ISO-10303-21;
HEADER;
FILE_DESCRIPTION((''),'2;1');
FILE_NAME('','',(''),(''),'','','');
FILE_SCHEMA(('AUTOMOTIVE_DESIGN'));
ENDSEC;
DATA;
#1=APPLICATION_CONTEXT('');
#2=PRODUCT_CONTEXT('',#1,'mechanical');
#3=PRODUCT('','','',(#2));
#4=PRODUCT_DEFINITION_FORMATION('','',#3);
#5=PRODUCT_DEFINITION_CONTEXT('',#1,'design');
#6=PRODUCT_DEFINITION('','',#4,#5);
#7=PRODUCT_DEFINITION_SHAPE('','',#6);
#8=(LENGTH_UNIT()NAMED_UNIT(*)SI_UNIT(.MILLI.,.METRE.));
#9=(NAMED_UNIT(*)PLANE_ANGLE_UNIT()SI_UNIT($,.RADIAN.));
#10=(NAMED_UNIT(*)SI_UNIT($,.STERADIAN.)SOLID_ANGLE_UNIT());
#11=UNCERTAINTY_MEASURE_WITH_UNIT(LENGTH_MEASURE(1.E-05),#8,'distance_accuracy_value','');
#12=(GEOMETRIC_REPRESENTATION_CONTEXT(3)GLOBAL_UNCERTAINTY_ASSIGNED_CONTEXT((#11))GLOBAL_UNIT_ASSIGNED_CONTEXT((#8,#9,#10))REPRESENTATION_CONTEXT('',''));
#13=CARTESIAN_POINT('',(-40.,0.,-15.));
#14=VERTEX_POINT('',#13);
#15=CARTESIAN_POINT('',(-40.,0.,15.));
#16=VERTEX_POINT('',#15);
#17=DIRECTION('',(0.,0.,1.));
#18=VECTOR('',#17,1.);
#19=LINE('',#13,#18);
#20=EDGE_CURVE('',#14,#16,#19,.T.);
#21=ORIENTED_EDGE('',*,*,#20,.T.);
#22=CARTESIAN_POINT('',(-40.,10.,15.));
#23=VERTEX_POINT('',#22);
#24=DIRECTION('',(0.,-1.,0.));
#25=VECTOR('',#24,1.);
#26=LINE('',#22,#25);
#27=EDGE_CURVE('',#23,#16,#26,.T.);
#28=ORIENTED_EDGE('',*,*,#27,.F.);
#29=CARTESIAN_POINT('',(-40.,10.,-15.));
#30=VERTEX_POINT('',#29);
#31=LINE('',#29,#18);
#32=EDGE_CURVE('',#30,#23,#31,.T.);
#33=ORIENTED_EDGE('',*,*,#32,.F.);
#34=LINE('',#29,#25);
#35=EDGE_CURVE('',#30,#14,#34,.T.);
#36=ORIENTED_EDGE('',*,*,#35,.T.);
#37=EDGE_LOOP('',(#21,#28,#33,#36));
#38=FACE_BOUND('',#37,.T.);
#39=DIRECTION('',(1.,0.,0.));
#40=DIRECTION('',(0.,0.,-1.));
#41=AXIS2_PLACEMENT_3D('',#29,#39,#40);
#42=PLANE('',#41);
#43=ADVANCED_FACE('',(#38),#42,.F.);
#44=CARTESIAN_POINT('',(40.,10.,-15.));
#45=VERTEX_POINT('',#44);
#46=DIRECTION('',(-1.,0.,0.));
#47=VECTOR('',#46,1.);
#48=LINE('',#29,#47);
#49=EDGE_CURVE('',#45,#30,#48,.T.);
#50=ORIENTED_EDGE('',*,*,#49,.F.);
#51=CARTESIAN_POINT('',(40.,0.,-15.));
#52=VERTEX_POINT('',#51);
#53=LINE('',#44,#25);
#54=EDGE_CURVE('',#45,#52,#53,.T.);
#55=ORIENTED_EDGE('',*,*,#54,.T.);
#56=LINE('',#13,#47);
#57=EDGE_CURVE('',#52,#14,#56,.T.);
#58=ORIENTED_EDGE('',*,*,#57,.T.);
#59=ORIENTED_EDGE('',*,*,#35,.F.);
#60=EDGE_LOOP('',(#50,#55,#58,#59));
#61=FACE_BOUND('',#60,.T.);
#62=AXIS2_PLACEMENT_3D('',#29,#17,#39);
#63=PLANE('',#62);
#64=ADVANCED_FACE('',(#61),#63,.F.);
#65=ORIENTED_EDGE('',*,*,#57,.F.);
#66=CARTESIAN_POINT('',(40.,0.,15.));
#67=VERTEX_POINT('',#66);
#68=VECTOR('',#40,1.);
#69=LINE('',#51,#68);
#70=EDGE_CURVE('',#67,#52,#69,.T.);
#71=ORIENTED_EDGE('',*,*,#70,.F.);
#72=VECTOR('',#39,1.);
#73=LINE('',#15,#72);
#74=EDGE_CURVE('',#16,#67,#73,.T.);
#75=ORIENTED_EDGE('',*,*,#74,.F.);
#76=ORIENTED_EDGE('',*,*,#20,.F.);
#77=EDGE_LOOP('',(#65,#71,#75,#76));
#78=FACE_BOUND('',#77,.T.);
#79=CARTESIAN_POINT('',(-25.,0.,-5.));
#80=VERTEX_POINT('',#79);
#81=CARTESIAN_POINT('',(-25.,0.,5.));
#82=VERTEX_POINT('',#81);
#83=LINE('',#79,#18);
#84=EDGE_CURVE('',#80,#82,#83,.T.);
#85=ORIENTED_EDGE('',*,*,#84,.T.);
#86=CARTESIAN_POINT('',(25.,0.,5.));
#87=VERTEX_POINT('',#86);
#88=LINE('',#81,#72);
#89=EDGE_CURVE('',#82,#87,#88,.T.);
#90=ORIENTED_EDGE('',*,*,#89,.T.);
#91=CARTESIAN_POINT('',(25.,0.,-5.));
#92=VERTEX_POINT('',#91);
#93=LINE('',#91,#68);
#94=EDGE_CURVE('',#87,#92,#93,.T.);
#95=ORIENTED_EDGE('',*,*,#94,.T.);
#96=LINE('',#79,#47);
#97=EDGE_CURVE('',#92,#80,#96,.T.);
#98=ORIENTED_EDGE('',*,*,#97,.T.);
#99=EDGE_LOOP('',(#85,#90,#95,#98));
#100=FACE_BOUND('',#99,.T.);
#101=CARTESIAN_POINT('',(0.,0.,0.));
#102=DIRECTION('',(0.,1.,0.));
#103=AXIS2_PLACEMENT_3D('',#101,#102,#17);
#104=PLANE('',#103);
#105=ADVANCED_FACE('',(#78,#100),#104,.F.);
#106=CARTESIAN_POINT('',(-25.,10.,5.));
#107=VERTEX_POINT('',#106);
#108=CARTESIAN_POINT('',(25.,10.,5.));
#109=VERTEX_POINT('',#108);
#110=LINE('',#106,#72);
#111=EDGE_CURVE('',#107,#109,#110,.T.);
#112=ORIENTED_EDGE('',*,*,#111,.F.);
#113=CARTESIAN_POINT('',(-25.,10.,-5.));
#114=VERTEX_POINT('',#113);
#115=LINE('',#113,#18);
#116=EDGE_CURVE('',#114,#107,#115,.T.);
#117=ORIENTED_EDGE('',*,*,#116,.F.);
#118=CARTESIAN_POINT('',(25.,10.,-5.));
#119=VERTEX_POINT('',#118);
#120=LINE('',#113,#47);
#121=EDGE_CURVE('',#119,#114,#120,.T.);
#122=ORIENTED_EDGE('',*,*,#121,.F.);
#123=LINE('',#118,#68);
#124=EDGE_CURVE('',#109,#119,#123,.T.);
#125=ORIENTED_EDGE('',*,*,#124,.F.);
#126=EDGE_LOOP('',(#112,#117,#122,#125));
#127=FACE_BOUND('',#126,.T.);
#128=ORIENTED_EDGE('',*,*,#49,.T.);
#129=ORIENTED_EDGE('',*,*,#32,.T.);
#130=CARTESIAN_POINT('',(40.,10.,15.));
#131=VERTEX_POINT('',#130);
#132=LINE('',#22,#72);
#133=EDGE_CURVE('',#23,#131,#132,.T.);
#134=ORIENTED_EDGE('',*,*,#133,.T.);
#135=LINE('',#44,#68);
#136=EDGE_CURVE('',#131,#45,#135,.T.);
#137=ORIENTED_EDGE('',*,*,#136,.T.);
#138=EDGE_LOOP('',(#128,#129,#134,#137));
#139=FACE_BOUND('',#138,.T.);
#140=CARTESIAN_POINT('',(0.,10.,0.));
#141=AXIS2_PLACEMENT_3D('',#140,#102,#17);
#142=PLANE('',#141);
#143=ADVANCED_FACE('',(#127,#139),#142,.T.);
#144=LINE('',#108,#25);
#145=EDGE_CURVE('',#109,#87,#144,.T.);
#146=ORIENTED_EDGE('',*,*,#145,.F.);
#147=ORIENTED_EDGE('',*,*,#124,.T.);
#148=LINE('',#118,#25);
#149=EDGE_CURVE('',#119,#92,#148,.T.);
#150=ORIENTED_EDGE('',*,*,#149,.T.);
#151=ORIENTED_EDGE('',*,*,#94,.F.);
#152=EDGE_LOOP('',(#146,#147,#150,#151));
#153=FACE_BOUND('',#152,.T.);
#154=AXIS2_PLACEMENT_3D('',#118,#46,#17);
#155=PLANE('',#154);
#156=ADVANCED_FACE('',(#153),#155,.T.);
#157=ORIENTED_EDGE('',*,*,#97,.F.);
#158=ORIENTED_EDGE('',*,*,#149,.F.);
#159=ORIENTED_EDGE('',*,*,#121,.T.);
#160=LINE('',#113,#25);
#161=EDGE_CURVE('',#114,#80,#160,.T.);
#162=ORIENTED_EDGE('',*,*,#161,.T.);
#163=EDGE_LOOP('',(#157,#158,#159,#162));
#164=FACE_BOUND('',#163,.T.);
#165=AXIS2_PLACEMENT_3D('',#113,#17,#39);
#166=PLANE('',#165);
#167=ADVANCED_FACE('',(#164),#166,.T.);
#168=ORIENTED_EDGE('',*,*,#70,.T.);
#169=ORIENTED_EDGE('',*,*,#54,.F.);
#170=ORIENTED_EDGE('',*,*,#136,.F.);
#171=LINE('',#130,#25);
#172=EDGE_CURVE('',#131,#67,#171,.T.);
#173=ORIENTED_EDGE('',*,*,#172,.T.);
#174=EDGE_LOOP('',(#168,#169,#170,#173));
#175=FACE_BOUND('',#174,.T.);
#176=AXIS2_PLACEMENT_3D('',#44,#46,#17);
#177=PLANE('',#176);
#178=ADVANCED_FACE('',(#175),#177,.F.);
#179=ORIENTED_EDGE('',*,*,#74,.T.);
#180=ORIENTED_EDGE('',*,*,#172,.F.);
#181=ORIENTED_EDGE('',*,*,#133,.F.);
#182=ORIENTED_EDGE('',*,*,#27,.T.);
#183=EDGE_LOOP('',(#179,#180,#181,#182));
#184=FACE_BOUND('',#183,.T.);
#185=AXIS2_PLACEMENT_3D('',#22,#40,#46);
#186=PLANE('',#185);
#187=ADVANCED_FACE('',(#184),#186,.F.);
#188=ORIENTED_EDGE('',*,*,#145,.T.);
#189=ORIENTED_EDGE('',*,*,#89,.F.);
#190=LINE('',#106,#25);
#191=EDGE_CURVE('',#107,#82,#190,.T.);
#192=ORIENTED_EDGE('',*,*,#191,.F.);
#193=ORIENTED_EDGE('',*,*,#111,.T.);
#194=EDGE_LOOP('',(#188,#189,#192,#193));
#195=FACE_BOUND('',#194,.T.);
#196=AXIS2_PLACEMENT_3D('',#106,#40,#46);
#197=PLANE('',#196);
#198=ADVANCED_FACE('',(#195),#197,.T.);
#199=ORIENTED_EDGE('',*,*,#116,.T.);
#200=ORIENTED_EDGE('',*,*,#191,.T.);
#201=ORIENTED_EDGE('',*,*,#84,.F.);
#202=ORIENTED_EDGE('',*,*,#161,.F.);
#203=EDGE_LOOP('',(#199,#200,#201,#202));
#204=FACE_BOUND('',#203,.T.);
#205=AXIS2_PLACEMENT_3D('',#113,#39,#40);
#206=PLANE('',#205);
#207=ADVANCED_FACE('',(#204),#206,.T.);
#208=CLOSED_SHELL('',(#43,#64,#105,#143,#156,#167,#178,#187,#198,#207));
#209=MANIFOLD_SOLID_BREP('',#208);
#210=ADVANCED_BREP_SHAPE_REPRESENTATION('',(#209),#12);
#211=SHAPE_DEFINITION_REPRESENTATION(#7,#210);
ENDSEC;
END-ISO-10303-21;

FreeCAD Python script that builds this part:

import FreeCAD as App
import Part
import Sketcher
from FreeCAD import Vector
Q = App.Units.Quantity


def add_polygon(sketch, points):
    """Adds a closed chain of lines whose ends are joined by coincident constraints."""
    first, n = sketch.GeometryCount, len(points)
    for a, b in zip(points, points[1:] + points[:1]):
        sketch.addGeometry(Part.LineSegment(App.Vector(*a, 0), App.Vector(*b, 0)), False)
    for i in range(n):
        sketch.addConstraint(Sketcher.Constraint("Coincident", first + i, 2, first + (i + 1) % n, 1))

doc = App.newDocument("Part")
body = doc.addObject("PartDesign::Body", "Body")

sketch1 = doc.addObject("Sketcher::SketchObject", "Sketch")
body.addObject(sketch1)
sketch1.AttachmentSupport = (doc.XZ_Plane, [""])
sketch1.MapMode = "FlatFace"
add_polygon(sketch1, [(-40, -15), (-40, 15), (40, 15), (40, -15)])
add_polygon(sketch1, [(25, 5), (-25, 5), (-25, -5), (25, -5)])
sketch1.addConstraint(Sketcher.Constraint("Vertical", 0))
sketch1.addConstraint(Sketcher.Constraint("Horizontal", 1))
sketch1.addConstraint(Sketcher.Constraint("Vertical", 2))
sketch1.addConstraint(Sketcher.Constraint("Horizontal", 3))
sketch1.addConstraint(Sketcher.Constraint("Horizontal", 4))
sketch1.addConstraint(Sketcher.Constraint("Vertical", 5))
sketch1.addConstraint(Sketcher.Constraint("Horizontal", 6))
sketch1.addConstraint(Sketcher.Constraint("Vertical", 7))
sketch1.addConstraint(Sketcher.Constraint("Symmetric", 0, 2, 2, 2, -1, 1))
sketch1.addConstraint(Sketcher.Constraint("Symmetric", 4, 2, 6, 2, -1, 1))
sketch1.addConstraint(Sketcher.Constraint("DistanceX", 1, 1, 1, 2, Q("80 mm")))
sketch1.addConstraint(Sketcher.Constraint("DistanceX", 4, 2, 4, 1, Q("50 mm")))
sketch1.addConstraint(Sketcher.Constraint("DistanceY", 0, 1, 0, 2, Q("30 mm")))
sketch1.addConstraint(Sketcher.Constraint("DistanceY", 5, 2, 5, 1, Q("10 mm")))
pad1 = doc.addObject("PartDesign::Pad", "Pad")
body.addObject(pad1)
pad1.Profile = sketch1
pad1.Length = 10
pad1.Reversed = True

doc.recompute()
